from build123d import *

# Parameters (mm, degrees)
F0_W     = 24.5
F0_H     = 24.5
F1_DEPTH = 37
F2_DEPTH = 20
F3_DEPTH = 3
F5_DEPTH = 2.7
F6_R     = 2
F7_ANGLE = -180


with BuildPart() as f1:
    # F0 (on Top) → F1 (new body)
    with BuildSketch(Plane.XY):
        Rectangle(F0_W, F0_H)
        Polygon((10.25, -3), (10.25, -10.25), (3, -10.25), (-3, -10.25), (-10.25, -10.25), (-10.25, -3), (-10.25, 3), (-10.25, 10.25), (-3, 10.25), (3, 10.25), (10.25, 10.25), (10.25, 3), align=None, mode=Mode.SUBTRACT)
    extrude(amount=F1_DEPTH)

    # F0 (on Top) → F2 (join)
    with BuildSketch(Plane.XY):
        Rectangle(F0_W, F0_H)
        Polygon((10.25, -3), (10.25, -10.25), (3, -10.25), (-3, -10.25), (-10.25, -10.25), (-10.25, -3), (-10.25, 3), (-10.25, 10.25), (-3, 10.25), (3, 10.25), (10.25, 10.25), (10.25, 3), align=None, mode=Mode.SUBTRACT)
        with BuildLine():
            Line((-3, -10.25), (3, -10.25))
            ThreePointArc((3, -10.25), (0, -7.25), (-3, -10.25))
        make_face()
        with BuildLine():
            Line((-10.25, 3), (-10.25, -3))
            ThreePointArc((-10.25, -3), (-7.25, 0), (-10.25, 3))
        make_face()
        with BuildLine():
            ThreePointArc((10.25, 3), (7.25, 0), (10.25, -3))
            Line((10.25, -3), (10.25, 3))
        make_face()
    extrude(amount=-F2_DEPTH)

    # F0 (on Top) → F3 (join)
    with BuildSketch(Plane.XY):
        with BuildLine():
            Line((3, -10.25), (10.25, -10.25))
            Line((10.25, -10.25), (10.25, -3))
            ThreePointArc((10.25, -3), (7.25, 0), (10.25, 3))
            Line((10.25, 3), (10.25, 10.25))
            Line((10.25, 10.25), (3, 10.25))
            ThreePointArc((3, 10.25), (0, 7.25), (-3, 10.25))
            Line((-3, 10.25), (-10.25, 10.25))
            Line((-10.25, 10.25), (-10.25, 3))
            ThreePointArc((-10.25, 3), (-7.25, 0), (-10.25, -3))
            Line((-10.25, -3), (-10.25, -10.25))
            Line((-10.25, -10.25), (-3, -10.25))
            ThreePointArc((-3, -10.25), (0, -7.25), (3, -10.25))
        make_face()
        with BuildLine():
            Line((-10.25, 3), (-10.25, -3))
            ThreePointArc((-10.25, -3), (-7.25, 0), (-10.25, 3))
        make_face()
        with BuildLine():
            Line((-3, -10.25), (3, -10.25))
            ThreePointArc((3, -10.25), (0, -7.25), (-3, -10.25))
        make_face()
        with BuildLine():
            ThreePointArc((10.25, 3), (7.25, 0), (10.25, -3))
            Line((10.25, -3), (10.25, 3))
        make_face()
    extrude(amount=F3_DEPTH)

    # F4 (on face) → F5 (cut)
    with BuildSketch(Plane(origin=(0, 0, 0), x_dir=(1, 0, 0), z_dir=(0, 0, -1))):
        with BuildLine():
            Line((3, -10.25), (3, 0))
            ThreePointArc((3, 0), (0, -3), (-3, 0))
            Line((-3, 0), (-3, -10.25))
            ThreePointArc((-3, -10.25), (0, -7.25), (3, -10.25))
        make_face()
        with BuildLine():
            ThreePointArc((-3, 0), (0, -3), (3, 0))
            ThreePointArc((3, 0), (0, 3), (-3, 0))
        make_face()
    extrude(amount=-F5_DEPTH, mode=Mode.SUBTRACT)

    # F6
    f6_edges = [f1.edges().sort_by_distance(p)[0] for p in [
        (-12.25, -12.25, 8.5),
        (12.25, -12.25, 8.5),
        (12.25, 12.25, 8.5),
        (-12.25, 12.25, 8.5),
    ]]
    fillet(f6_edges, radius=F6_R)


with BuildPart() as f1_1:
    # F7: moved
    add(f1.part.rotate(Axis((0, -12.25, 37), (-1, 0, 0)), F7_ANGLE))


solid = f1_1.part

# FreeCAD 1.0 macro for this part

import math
import FreeCAD as App
import Part
import Sketcher
from FreeCAD import Vector


def edges_at(feature, points):
    """Names of the edges that pass closest to the given points."""
    edges = feature.Shape.Edges
    near = lambda p: min(range(len(edges)), key=lambda i: edges[i].distToShape(Part.Vertex(*p))[0])
    return sorted({f"Edge{near(p) + 1}" for p in points})

doc = App.newDocument("Part")
body = doc.addObject("PartDesign::Body", "Body")

# Sketch on XY plane
sketch1 = doc.addObject("Sketcher::SketchObject", "Sketch")
body.addObject(sketch1)
sketch1.AttachmentSupport = (doc.XY_Plane, [""])
sketch1.MapMode = "FlatFace"
sketch1.addGeometry([
    Part.LineSegment(Vector(-12, 12, 0), Vector(-12, -12, 0)),  # 0
    Part.LineSegment(Vector(-12, -12, 0), Vector(12, -12, 0)),  # 1
    Part.LineSegment(Vector(12, -12, 0), Vector(12, 12, 0)),  # 2
    Part.LineSegment(Vector(12, 12, 0), Vector(-12, 12, 0)),  # 3
    Part.LineSegment(Vector(10, 10, 0), Vector(10, -10, 0)),  # 4
    Part.LineSegment(Vector(10, -10, 0), Vector(-10, -10, 0)),  # 5
    Part.LineSegment(Vector(-10, -10, 0), Vector(-10, 10, 0)),  # 6
    Part.LineSegment(Vector(-10, 10, 0), Vector(10, 10, 0)),  # 7
], False)
sketch1.addConstraint([
    Sketcher.Constraint("Coincident", 0, 2, 1, 1),
    Sketcher.Constraint("Coincident", 1, 2, 2, 1),
    Sketcher.Constraint("Coincident", 2, 2, 3, 1),
    Sketcher.Constraint("Coincident", 3, 2, 0, 1),
    Sketcher.Constraint("Coincident", 4, 2, 5, 1),
    Sketcher.Constraint("Coincident", 5, 2, 6, 1),
    Sketcher.Constraint("Coincident", 6, 2, 7, 1),
    Sketcher.Constraint("Coincident", 7, 2, 4, 1),
    Sketcher.Constraint("Vertical", 0),
    Sketcher.Constraint("Horizontal", 1),
    Sketcher.Constraint("Vertical", 2),
    Sketcher.Constraint("Horizontal", 3),
    Sketcher.Constraint("Vertical", 4),
    Sketcher.Constraint("Horizontal", 5),
    Sketcher.Constraint("Vertical", 6),
    Sketcher.Constraint("Horizontal", 7),
    Sketcher.Constraint("Symmetric", 0, 2, 2, 2, -1, 1),
    Sketcher.Constraint("Symmetric", 4, 2, 6, 2, -1, 1),
    Sketcher.Constraint("Equal", 3, 0),
    Sketcher.Constraint("Equal", 7, 4),
    Sketcher.Constraint("DistanceX", 1, 1, 1, 2, 24.5),
    Sketcher.Constraint("DistanceX", 5, 2, 5, 1, 20.5),
])
pad1 = doc.addObject("PartDesign::Pad", "Pad")
body.addObject(pad1)
pad1.Profile = sketch1
pad1.Length = 37

# Sketch on XY plane
sketch2 = doc.addObject("Sketcher::SketchObject", "Sketch001")
body.addObject(sketch2)
sketch2.AttachmentSupport = (doc.XY_Plane, [""])
sketch2.MapMode = "FlatFace"
sketch2.addGeometry([
    Part.LineSegment(Vector(-12.2, 12.2, 0), Vector(-12.2, -12.2, 0)),  # 0
    Part.LineSegment(Vector(-12.2, -12.2, 0), Vector(12.2, -12.2, 0)),  # 1
    Part.LineSegment(Vector(12.2, -12.2, 0), Vector(12.2, 12.2, 0)),  # 2
    Part.LineSegment(Vector(12.2, 12.2, 0), Vector(-12.2, 12.2, 0)),  # 3
    Part.LineSegment(Vector(10.2, 10.2, 0), Vector(10.2, 3, 0)),  # 4
    Part.ArcOfCircle(Part.Circle(Vector(10.2, 0, 0), Vector(0, 0, 1), 3), math.radians(90), math.radians(270)),  # 5
    Part.LineSegment(Vector(10.2, -3, 0), Vector(10.2, -10.2, 0)),  # 6
    Part.LineSegment(Vector(10.2, -10.2, 0), Vector(3, -10.2, 0)),  # 7
    Part.ArcOfCircle(Part.Circle(Vector(0, -10.2, 0), Vector(0, 0, 1), 3), math.radians(0), math.radians(180)),  # 8
    Part.LineSegment(Vector(-3, -10.2, 0), Vector(-10.2, -10.2, 0)),  # 9
    Part.LineSegment(Vector(-10.2, -10.2, 0), Vector(-10.2, -3, 0)),  # 10
    Part.ArcOfCircle(Part.Circle(Vector(-10.2, 0, 0), Vector(0, 0, 1), 3), math.radians(-90), math.radians(90)),  # 11
    Part.LineSegment(Vector(-10.2, 3, 0), Vector(-10.2, 10.2, 0)),  # 12
    Part.LineSegment(Vector(-10.2, 10.2, 0), Vector(10.2, 10.2, 0)),  # 13
], False)
sketch2.addConstraint([
    Sketcher.Constraint("Coincident", 0, 2, 1, 1),
    Sketcher.Constraint("Coincident", 1, 2, 2, 1),
    Sketcher.Constraint("Coincident", 2, 2, 3, 1),
    Sketcher.Constraint("Coincident", 3, 2, 0, 1),
    Sketcher.Constraint("Coincident", 4, 2, 5, 1),
    Sketcher.Constraint("Coincident", 5, 2, 6, 1),
    Sketcher.Constraint("Coincident", 6, 2, 7, 1),
    Sketcher.Constraint("Coincident", 7, 2, 8, 1),
    Sketcher.Constraint("Coincident", 8, 2, 9, 1),
    Sketcher.Constraint("Coincident", 9, 2, 10, 1),
    Sketcher.Constraint("Coincident", 10, 2, 11, 1),
    Sketcher.Constraint("Coincident", 11, 2, 12, 1),
    Sketcher.Constraint("Coincident", 12, 2, 13, 1),
    Sketcher.Constraint("Coincident", 13, 2, 4, 1),
    Sketcher.Constraint("Vertical", 0),
    Sketcher.Constraint("Horizontal", 1),
    Sketcher.Constraint("Vertical", 2),
    Sketcher.Constraint("Horizontal", 3),
    Sketcher.Constraint("Vertical", 4),
    Sketcher.Constraint("Vertical", 6),
    Sketcher.Constraint("Horizontal", 7),
    Sketcher.Constraint("Horizontal", 9),
    Sketcher.Constraint("Vertical", 10),
    Sketcher.Constraint("Vertical", 12),
    Sketcher.Constraint("Horizontal", 13),
    Sketcher.Constraint("Equal", 5, 8),
    Sketcher.Constraint("Equal", 8, 11),
    Sketcher.Constraint("Symmetric", 5, 3, 11, 3, -1, 1),
    Sketcher.Constraint("Symmetric", 0, 2, 2, 2, -1, 1),
    Sketcher.Constraint("Symmetric", 6, 2, 12, 2, -1, 1),
    Sketcher.Constraint("Symmetric", 9, 2, 13, 2, -1, 1),
    Sketcher.Constraint("Symmetric", 5, 2, 10, 2, -2),
    Sketcher.Constraint("PointOnObject", 8, 3, -2),
    Sketcher.Constraint("Horizontal", 8, 3, 6, 2),
    Sketcher.Constraint("Vertical", 5, 3, 4, 2),
    Sketcher.Constraint("Equal", 3, 0),
    Sketcher.Constraint("Equal", 9, 4),
    Sketcher.Constraint("Radius", 5, 3.0),
    Sketcher.Constraint("DistanceX", 1, 1, 1, 2, 24.5),
    Sketcher.Constraint("DistanceX", 13, 1, 13, 2, 20.5),
])
pad2 = doc.addObject("PartDesign::Pad", "Pad001")
body.addObject(pad2)
pad2.Profile = sketch2
pad2.Length = 20
pad2.Reversed = True

# Sketch on XY plane
sketch3 = doc.addObject("Sketcher::SketchObject", "Sketch002")
body.addObject(sketch3)
sketch3.AttachmentSupport = (doc.XY_Plane, [""])
sketch3.MapMode = "FlatFace"
sketch3.addGeometry([
    Part.LineSegment(Vector(10.2, -10.2, 0), Vector(10.2, 10.2, 0)),  # 0
    Part.LineSegment(Vector(10.2, 10.2, 0), Vector(3, 10.2, 0)),  # 1
    Part.ArcOfCircle(Part.Circle(Vector(0, 10.2, 0), Vector(0, 0, 1), 3), math.radians(180), math.radians(360)),  # 2
    Part.LineSegment(Vector(-3, 10.2, 0), Vector(-10.2, 10.2, 0)),  # 3
    Part.LineSegment(Vector(-10.2, 10.2, 0), Vector(-10.2, -10.2, 0)),  # 4
    Part.LineSegment(Vector(-10.2, -10.2, 0), Vector(10.2, -10.2, 0)),  # 5
], False)
sketch3.addConstraint([
    Sketcher.Constraint("Coincident", 0, 2, 1, 1),
    Sketcher.Constraint("Coincident", 1, 2, 2, 2),
    Sketcher.Constraint("Coincident", 2, 1, 3, 1),
    Sketcher.Constraint("Coincident", 3, 2, 4, 1),
    Sketcher.Constraint("Coincident", 4, 2, 5, 1),
    Sketcher.Constraint("Coincident", 5, 2, 0, 1),
    Sketcher.Constraint("Vertical", 0),
    Sketcher.Constraint("Horizontal", 1),
    Sketcher.Constraint("Horizontal", 3),
    Sketcher.Constraint("Vertical", 4),
    Sketcher.Constraint("Horizontal", 5),
    Sketcher.Constraint("Symmetric", 0, 2, 4, 2, -1, 1),
    Sketcher.Constraint("Symmetric", 1, 2, 2, 1, -2),
    Sketcher.Constraint("Horizontal", 2, 3, 0, 2),
    Sketcher.Constraint("Equal", 5, 0),
    Sketcher.Constraint("Radius", 2, 3.0),
    Sketcher.Constraint("DistanceX", 5, 1, 5, 2, 20.5),
])
pad3 = doc.addObject("PartDesign::Pad", "Pad002")
body.addObject(pad3)
pad3.Profile = sketch3
pad3.Length = 3

# Sketch on XY plane
sketch4 = doc.addObject("Sketcher::SketchObject", "Sketch003")
body.addObject(sketch4)
sketch4.AttachmentSupport = (doc.XY_Plane, [""])
sketch4.MapMode = "FlatFace"
sketch4.addGeometry([
    Part.LineSegment(Vector(3, 10.2, 0), Vector(3, 0, 0)),
    Part.ArcOfCircle(Part.Circle(Vector(0, 0, 0), Vector(0, 0, 1), 3), math.radians(180), math.radians(360)),
    Part.LineSegment(Vector(-3, 0, 0), Vector(-3, 10.2, 0)),
    Part.ArcOfCircle(Part.Circle(Vector(0, 10.2, 0), Vector(0, 0, 1), 3), math.radians(180), math.radians(360)),
], False)
sketch4.addConstraint([
    Sketcher.Constraint("Tangent", 0, 2, 1, 2),
    Sketcher.Constraint("Tangent", 1, 1, 2, 1),
    Sketcher.Constraint("Tangent", 2, 2, 3, 1),
    Sketcher.Constraint("Tangent", 3, 2, 0, 1),
    Sketcher.Constraint("Vertical", 0),
    Sketcher.Constraint("Vertical", 2),
    Sketcher.Constraint("Coincident", 1, 3, -1, 1),
    Sketcher.Constraint("Radius", 1, 3.0),
    Sketcher.Constraint("DistanceY", 0, 2, 0, 1, 10.25),
])
pocket1 = doc.addObject("PartDesign::Pocket", "Pocket")
body.addObject(pocket1)
pocket1.Profile = sketch4
pocket1.Length = 2.7
pocket1.Reversed = True
doc.recompute()

fillet = doc.addObject("PartDesign::Fillet", "Fillet")
body.addObject(fillet)
fillet.Base = (pocket1, edges_at(pocket1, [
    (-12.25, -12.25, 8.5),
    (12.25, -12.25, 8.5),
    (12.25, 12.25, 8.5),
    (-12.25, 12.25, 8.5),
]))
fillet.Radius = 2
body2 = doc.addObject("PartDesign::Body", "Body001")
doc.recompute()

body.Placement = App.Placement(Vector(0, -24.5, 74), App.Rotation(Vector(-1, 0, 0), 180))
boolean = doc.addObject("PartDesign::Boolean", "Boolean")
body2.addObject(boolean)
boolean.Type = "Fuse"
boolean.addObjects([body])

doc.recompute()
